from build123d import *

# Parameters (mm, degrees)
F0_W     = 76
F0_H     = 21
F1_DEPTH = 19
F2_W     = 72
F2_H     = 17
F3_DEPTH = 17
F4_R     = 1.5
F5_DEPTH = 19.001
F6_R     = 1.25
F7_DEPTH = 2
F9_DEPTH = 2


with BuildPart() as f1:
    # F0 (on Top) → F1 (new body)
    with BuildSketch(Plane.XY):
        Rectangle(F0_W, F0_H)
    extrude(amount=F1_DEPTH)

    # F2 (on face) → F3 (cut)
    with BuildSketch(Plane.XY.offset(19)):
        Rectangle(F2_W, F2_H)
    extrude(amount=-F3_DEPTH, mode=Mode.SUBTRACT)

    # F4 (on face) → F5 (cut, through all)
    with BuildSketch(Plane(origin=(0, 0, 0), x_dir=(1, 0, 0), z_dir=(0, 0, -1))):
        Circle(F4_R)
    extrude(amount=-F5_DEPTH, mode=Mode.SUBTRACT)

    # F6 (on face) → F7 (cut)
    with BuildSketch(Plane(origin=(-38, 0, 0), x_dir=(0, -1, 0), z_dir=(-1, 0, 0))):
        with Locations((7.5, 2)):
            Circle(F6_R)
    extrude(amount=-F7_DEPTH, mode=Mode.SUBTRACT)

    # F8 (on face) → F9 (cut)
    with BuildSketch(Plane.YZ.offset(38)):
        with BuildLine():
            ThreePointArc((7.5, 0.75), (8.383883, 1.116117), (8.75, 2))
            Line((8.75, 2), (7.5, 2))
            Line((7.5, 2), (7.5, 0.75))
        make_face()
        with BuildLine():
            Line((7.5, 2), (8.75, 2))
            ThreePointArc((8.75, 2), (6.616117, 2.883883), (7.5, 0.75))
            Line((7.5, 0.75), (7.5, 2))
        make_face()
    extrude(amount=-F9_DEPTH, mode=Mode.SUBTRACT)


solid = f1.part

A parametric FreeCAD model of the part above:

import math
import FreeCAD as App
import Part
import Sketcher

V = App.Vector

doc = App.newDocument("Part")
body = doc.addObject("PartDesign::Body", "Body")

# Sketch on XY plane
sketch1 = body.newObject("Sketcher::SketchObject", "Sketch")
sketch1.AttachmentSupport = (doc.getObject("XY_Plane"), [""])
sketch1.MapMode = "FlatFace"
sketch1.addGeometry([
    Part.LineSegment(V(-38, 10.5, 0), V(-38, -10.5, 0)),
    Part.LineSegment(V(-38, -10.5, 0), V(38, -10.5, 0)),
    Part.LineSegment(V(38, -10.5, 0), V(38, 10.5, 0)),
    Part.LineSegment(V(38, 10.5, 0), V(-38, 10.5, 0)),
], False)
sketch1.addConstraint([
    Sketcher.Constraint("Coincident", 0, 2, 1, 1),
    Sketcher.Constraint("Coincident", 1, 2, 2, 1),
    Sketcher.Constraint("Coincident", 2, 2, 3, 1),
    Sketcher.Constraint("Coincident", 3, 2, 0, 1),
    Sketcher.Constraint("Vertical", 0),
    Sketcher.Constraint("Horizontal", 1),
    Sketcher.Constraint("Vertical", 2),
    Sketcher.Constraint("Horizontal", 3),
    Sketcher.Constraint("Symmetric", 0, 2, 2, 2, -1, 1),
    Sketcher.Constraint("DistanceX", 1, 1, 1, 2, 76.0),
    Sketcher.Constraint("DistanceY", 0, 2, 0, 1, 21.0),
])
pad1 = body.newObject("PartDesign::Pad", "Pad")
pad1.Profile = sketch1
pad1.Length = 19

# Sketch on XY plane
sketch2 = body.newObject("Sketcher::SketchObject", "Sketch001")
sketch2.AttachmentSupport = (doc.getObject("XY_Plane"), [""])
sketch2.MapMode = "FlatFace"
sketch2.AttachmentOffset = App.Placement(V(0, 0, 19), App.Rotation())
sketch2.addGeometry([
    Part.LineSegment(V(-36, 8.5, 0), V(-36, -8.5, 0)),
    Part.LineSegment(V(-36, -8.5, 0), V(36, -8.5, 0)),
    Part.LineSegment(V(36, -8.5, 0), V(36, 8.5, 0)),
    Part.LineSegment(V(36, 8.5, 0), V(-36, 8.5, 0)),
], False)
sketch2.addConstraint([
    Sketcher.Constraint("Coincident", 0, 2, 1, 1),
    Sketcher.Constraint("Coincident", 1, 2, 2, 1),
    Sketcher.Constraint("Coincident", 2, 2, 3, 1),
    Sketcher.Constraint("Coincident", 3, 2, 0, 1),
    Sketcher.Constraint("Vertical", 0),
    Sketcher.Constraint("Horizontal", 1),
    Sketcher.Constraint("Vertical", 2),
    Sketcher.Constraint("Horizontal", 3),
    Sketcher.Constraint("Symmetric", 0, 2, 2, 2, -1, 1),
    Sketcher.Constraint("DistanceX", 1, 1, 1, 2, 72.0),
    Sketcher.Constraint("DistanceY", 0, 2, 0, 1, 17.0),
])
pocket1 = body.newObject("PartDesign::Pocket", "Pocket")
pocket1.Profile = sketch2
pocket1.Length = 17

# Sketch on XY plane
sketch3 = body.newObject("Sketcher::SketchObject", "Sketch002")
sketch3.AttachmentSupport = (doc.getObject("XY_Plane"), [""])
sketch3.MapMode = "FlatFace"
sketch3.addGeometry(Part.Circle(V(0, 0, 0), V(0, 0, 1), 1.5), False)
sketch3.addConstraint([
    Sketcher.Constraint("Coincident", 0, 3, -1, 1),
    Sketcher.Constraint("Diameter", 0, 3.0),
])
pocket2 = body.newObject("PartDesign::Pocket", "Pocket001")
pocket2.Profile = sketch3
pocket2.Type = "ThroughAll"
pocket2.Reversed = True

# Sketch on YZ plane
sketch4 = body.newObject("Sketcher::SketchObject", "Sketch003")
sketch4.AttachmentSupport = (doc.getObject("YZ_Plane"), [""])
sketch4.MapMode = "FlatFace"
sketch4.AttachmentOffset = App.Placement(V(0, 0, -38), App.Rotation())
sketch4.addGeometry(Part.Circle(V(-7.5, 2, 0), V(0, 0, 1), 1.25), False)
sketch4.addConstraint([
    Sketcher.Constraint("Diameter", 0, 2.5),
    Sketcher.Constraint("DistanceY", -1, 1, 0, 3, 2.0),
    Sketcher.Constraint("DistanceX", 0, 3, -1, 1, 7.5),
])
pocket3 = body.newObject("PartDesign::Pocket", "Pocket002")
pocket3.Profile = sketch4
pocket3.Length = 2
pocket3.Reversed = True

# Sketch on YZ plane
sketch5 = body.newObject("Sketcher::SketchObject", "Sketch004")
sketch5.AttachmentSupport = (doc.getObject("YZ_Plane"), [""])
sketch5.MapMode = "FlatFace"
sketch5.AttachmentOffset = App.Placement(V(0, 0, 38), App.Rotation())
sketch5.addGeometry([
    Part.ArcOfCircle(Part.Circle(V(7.499998, 2.000002, 0), V(0, 0, 1), 1.250002), math.radians(-89.999925), math.radians(-0.000075)),
    Part.ArcOfCircle(Part.Circle(V(7.5, 2, 0), V(0, 0, 1), 1.25), math.radians(0.000013), math.radians(269.999987)),
], False)
sketch5.addConstraint([
    Sketcher.Constraint("Tangent", 0, 1, 1, 2),
    Sketcher.Constraint("Coincident", 1, 1, 0, 2),
    Sketcher.Constraint("Horizontal", 0, 3, 1, 1),
    Sketcher.Constraint("Vertical", 1, 3, 0, 1),
    Sketcher.Constraint("Radius", 0, 1.250002),
    Sketcher.Constraint("DistanceY", -1, 1, 0, 3, 2.000002),
    Sketcher.Constraint("DistanceX", -1, 1, 0, 3, 7.499998),
])
pocket4 = body.newObject("PartDesign::Pocket", "Pocket003")
pocket4.Profile = sketch5
pocket4.Length = 2

doc.recompute()
